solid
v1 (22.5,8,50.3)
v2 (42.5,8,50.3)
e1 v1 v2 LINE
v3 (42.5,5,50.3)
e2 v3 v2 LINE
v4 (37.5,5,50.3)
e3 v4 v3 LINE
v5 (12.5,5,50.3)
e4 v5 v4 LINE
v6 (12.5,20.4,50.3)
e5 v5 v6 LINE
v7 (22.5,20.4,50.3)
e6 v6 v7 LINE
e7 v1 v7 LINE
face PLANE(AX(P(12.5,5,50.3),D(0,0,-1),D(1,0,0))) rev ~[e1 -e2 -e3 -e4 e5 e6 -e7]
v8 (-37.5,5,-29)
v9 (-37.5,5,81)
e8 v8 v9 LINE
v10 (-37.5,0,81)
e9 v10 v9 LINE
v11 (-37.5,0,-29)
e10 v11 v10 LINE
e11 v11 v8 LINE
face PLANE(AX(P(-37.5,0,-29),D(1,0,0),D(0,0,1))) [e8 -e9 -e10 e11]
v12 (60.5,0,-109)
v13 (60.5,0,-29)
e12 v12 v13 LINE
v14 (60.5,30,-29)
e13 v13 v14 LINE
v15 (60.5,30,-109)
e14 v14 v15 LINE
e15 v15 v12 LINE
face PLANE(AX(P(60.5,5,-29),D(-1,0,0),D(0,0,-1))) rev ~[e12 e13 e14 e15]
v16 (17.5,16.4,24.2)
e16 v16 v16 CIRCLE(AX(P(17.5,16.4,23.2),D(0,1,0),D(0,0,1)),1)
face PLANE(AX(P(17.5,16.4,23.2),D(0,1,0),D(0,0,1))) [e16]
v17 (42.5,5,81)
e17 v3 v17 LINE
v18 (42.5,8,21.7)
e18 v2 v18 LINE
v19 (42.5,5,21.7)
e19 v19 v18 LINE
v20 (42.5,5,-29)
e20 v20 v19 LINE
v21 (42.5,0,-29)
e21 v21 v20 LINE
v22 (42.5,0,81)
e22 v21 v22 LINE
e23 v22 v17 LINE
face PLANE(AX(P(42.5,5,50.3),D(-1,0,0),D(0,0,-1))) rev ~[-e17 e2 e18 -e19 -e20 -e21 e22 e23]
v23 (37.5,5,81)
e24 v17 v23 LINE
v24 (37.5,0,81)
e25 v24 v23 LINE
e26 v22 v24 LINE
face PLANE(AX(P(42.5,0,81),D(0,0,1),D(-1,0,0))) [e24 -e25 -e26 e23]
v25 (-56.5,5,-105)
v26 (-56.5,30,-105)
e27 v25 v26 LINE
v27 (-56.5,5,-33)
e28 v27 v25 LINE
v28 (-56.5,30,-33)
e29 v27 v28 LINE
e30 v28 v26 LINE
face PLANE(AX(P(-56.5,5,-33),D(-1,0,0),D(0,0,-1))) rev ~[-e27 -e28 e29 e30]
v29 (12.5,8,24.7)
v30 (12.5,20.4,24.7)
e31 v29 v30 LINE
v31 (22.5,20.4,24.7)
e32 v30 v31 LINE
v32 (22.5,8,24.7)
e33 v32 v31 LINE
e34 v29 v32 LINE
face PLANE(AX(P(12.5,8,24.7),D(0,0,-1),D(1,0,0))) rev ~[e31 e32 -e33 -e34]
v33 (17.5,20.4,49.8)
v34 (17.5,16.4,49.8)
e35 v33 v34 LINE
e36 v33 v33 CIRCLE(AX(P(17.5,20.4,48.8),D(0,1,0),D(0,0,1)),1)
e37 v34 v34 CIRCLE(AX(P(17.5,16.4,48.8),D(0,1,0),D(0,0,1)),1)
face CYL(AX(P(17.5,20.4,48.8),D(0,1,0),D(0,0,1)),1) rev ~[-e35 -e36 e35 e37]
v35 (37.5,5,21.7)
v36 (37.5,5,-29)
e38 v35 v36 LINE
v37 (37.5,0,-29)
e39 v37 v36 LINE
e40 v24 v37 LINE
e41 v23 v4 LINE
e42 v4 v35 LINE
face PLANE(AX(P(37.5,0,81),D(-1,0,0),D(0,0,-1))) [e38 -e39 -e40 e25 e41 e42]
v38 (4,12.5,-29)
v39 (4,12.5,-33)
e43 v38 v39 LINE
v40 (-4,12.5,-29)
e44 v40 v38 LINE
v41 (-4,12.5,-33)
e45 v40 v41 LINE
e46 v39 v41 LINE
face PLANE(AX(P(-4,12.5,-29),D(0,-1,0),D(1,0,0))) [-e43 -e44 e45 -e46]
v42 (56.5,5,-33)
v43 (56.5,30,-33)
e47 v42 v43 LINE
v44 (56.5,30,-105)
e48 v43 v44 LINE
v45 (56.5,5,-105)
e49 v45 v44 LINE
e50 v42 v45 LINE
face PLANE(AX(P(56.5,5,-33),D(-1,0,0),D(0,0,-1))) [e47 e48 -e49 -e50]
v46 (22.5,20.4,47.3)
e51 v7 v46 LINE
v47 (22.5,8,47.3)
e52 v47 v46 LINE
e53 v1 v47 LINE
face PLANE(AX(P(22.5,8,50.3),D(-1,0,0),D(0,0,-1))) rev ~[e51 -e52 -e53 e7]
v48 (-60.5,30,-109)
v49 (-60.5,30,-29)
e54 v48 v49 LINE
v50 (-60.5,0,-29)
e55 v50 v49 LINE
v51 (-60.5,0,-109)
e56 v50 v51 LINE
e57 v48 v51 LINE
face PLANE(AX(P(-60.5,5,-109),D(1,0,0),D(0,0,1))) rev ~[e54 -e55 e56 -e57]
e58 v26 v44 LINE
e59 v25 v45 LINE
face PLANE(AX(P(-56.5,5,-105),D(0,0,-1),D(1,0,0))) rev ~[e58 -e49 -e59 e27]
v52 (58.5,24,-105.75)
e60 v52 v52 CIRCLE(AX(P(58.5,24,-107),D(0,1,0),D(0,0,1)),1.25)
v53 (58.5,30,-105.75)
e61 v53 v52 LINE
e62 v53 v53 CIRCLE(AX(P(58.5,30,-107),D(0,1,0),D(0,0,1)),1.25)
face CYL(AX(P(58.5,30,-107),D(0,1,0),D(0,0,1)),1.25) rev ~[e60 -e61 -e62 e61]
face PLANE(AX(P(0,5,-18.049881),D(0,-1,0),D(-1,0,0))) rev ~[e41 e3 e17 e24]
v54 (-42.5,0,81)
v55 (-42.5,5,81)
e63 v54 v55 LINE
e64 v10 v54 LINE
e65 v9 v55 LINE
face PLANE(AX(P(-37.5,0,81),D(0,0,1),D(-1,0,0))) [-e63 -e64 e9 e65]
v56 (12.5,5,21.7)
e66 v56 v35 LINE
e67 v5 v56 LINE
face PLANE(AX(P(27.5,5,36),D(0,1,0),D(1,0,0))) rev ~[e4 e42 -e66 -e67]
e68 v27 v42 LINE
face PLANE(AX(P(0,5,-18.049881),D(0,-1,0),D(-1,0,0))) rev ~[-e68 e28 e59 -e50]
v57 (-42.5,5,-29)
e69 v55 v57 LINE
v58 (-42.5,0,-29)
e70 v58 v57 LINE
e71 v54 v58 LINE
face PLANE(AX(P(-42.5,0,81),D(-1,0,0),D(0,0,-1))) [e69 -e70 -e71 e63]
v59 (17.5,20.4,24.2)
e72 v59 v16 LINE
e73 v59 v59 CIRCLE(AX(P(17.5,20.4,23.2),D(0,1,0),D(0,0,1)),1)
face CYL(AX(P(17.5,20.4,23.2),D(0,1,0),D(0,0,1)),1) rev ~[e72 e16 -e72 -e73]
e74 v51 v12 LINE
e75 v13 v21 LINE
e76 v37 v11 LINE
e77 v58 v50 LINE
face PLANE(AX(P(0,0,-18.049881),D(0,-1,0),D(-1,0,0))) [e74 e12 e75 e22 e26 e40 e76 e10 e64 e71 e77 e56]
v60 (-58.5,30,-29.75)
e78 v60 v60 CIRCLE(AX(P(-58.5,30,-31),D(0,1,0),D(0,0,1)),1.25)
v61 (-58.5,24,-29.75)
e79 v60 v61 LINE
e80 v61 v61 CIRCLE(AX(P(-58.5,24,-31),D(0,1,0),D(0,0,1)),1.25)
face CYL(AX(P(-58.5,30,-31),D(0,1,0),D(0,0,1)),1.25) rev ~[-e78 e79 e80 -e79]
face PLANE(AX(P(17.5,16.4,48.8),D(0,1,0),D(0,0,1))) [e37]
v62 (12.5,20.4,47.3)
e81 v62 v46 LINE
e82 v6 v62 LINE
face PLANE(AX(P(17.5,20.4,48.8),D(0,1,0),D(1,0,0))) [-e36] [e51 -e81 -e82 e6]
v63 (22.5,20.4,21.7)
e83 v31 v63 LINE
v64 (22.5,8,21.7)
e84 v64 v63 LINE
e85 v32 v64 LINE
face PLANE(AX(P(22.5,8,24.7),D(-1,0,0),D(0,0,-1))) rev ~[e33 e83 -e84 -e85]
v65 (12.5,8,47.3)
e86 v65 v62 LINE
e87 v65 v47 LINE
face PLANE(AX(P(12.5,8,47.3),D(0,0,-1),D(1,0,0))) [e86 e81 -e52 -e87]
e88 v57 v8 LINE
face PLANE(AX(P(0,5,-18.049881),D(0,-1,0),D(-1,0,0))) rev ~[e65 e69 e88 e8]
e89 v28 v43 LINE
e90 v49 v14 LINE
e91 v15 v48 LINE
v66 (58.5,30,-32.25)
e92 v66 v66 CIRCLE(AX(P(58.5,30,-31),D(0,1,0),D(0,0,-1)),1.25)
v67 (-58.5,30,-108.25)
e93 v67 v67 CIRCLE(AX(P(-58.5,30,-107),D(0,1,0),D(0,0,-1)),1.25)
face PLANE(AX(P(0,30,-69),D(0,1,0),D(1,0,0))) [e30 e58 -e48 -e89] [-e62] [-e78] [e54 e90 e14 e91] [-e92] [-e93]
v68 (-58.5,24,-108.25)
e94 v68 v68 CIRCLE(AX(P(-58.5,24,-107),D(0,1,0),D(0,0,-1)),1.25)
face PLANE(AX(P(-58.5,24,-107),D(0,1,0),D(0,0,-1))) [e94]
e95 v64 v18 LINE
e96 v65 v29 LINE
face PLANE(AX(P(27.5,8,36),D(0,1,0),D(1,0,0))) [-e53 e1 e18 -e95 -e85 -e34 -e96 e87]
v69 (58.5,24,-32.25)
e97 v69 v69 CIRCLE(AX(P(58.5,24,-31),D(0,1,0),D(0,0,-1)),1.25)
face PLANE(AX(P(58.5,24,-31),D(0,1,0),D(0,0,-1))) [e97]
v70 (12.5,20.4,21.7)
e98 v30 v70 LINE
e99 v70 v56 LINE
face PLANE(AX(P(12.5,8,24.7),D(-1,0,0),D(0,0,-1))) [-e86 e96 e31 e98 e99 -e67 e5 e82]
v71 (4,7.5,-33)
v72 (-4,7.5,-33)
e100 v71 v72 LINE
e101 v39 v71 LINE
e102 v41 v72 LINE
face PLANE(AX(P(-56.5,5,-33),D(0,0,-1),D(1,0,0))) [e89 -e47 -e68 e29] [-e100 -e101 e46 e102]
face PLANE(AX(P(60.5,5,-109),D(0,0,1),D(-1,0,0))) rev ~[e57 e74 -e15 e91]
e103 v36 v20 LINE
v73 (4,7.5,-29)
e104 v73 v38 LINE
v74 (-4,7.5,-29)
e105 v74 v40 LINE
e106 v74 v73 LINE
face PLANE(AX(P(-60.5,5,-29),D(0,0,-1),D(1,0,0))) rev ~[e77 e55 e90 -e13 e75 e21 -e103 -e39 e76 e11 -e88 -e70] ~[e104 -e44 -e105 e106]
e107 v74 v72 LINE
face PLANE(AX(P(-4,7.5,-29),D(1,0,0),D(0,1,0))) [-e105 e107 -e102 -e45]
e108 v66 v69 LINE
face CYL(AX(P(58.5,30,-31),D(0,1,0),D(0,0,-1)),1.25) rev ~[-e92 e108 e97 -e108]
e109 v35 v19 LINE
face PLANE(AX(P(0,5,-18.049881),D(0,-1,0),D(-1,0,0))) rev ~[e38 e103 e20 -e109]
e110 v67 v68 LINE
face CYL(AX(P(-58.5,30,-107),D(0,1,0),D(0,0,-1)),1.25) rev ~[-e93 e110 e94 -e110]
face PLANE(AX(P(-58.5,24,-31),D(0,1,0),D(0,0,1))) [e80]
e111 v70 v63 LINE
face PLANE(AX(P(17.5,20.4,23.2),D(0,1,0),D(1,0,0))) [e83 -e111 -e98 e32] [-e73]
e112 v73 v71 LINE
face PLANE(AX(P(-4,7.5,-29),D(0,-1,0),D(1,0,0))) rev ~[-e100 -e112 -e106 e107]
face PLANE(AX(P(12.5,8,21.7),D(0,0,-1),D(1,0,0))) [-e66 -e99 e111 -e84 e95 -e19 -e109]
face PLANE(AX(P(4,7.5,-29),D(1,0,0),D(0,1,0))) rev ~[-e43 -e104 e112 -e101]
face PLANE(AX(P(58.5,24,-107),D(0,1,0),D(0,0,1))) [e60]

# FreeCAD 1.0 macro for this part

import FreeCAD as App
import Part
import Sketcher
from FreeCAD import Vector
Q = App.Units.Quantity


def add_polygon(sketch, points):
    """Adds a closed chain of lines whose ends are joined by coincident constraints."""
    first, n = sketch.GeometryCount, len(points)
    for a, b in zip(points, points[1:] + points[:1]):
        sketch.addGeometry(Part.LineSegment(App.Vector(*a, 0), App.Vector(*b, 0)), False)
    for i in range(n):
        sketch.addConstraint(Sketcher.Constraint("Coincident", first + i, 2, first + (i + 1) % n, 1))

doc = App.newDocument("Part")
body = doc.addObject("PartDesign::Body", "Body")

# Sketch on XZ plane
sketch1 = body.newObject("Sketcher::SketchObject", "Sketch")
sketch1.AttachmentSupport = (doc.getObject("XZ_Plane"), [""])
sketch1.MapMode = "FlatFace"
add_polygon(sketch1, [(-42, -29), (-42, 81), (-38, 81), (-38, -29), (38, -29), (38, 81), (42, 81), (42, -29), (60, -29), (60, -109), (-60, -109), (-60, -29)])  # lines 0-11
sketch1.addConstraint(Sketcher.Constraint("Vertical", 0))
sketch1.addConstraint(Sketcher.Constraint("Horizontal", 1))
sketch1.addConstraint(Sketcher.Constraint("Vertical", 2))
sketch1.addConstraint(Sketcher.Constraint("Horizontal", 3))
sketch1.addConstraint(Sketcher.Constraint("Vertical", 4))
sketch1.addConstraint(Sketcher.Constraint("Horizontal", 5))
sketch1.addConstraint(Sketcher.Constraint("Vertical", 6))
sketch1.addConstraint(Sketcher.Constraint("Horizontal", 7))
sketch1.addConstraint(Sketcher.Constraint("Vertical", 8))
sketch1.addConstraint(Sketcher.Constraint("Horizontal", 9))
sketch1.addConstraint(Sketcher.Constraint("Vertical", 10))
sketch1.addConstraint(Sketcher.Constraint("Horizontal", 11))
sketch1.addConstraint(Sketcher.Constraint("Symmetric", 1, 2, 4, 2, -2))
sketch1.addConstraint(Sketcher.Constraint("Symmetric", 7, 2, 10, 2, -2))
sketch1.addConstraint(Sketcher.Constraint("Horizontal", 3, 2, 6, 2))
sketch1.addConstraint(Sketcher.Constraint("Equal", 1, 5))
sketch1.addConstraint(Sketcher.Constraint("DistanceX", 1, 1, 1, 2, Q("5 mm")))
sketch1.addConstraint(Sketcher.Constraint("DistanceX", 3, 1, 3, 2, Q("75 mm")))
sketch1.addConstraint(Sketcher.Constraint("DistanceX", 7, 1, 7, 2, Q("18 mm")))
sketch1.addConstraint(Sketcher.Constraint("DistanceY", 0, 1, 0, 2, Q("110 mm")))
sketch1.addConstraint(Sketcher.Constraint("DistanceY", 8, 2, 8, 1, Q("80 mm")))
sketch1.addConstraint(Sketcher.Constraint("DistanceY", -1, 1, 0, 2, Q("81 mm")))
pad1 = body.newObject("PartDesign::Pad", "Pad")
pad1.Profile = sketch1
pad1.Length = 5
pad1.Reversed = True

# Sketch on XZ plane
sketch2 = body.newObject("Sketcher::SketchObject", "Sketch001")
sketch2.AttachmentSupport = (doc.getObject("XZ_Plane"), [""])
sketch2.MapMode = "FlatFace"
sketch2.AttachmentOffset = App.Placement(Vector(0, 0, -5), App.Rotation())
add_polygon(sketch2, [(-60, -109), (-60, -29), (60, -29), (60, -109)])  # lines 0-3
add_polygon(sketch2, [(56, -33), (-56, -33), (-56, -105), (56, -105)])  # lines 4-7
sketch2.addConstraint(Sketcher.Constraint("Vertical", 0))
sketch2.addConstraint(Sketcher.Constraint("Horizontal", 1))
sketch2.addConstraint(Sketcher.Constraint("Vertical", 2))
sketch2.addConstraint(Sketcher.Constraint("Horizontal", 3))
sketch2.addConstraint(Sketcher.Constraint("Horizontal", 4))
sketch2.addConstraint(Sketcher.Constraint("Vertical", 5))
sketch2.addConstraint(Sketcher.Constraint("Horizontal", 6))
sketch2.addConstraint(Sketcher.Constraint("Vertical", 7))
sketch2.addConstraint(Sketcher.Constraint("DistanceX", 1, 1, 1, 2, Q("121 mm")))
sketch2.addConstraint(Sketcher.Constraint("DistanceX", 4, 2, 4, 1, Q("113 mm")))
sketch2.addConstraint(Sketcher.Constraint("DistanceY", 0, 1, 0, 2, Q("80 mm")))
sketch2.addConstraint(Sketcher.Constraint("DistanceY", 5, 2, 5, 1, Q("72 mm")))
sketch2.addConstraint(Sketcher.Constraint("DistanceY", 0, 2, -1, 1, Q("29 mm")))
sketch2.addConstraint(Sketcher.Constraint("DistanceY", 4, 2, -1, 1, Q("33 mm")))
sketch2.addConstraint(Sketcher.Constraint("DistanceX", 0, 2, 4, 2, Q("4 mm")))
sketch2.addConstraint(Sketcher.Constraint("DistanceX", 0, 2, -1, 1, Q("60.5 mm")))
pad2 = body.newObject("PartDesign::Pad", "Pad001")
pad2.Profile = sketch2
pad2.Length = 25
pad2.Reversed = True

# Sketch on XZ plane
sketch3 = body.newObject("Sketcher::SketchObject", "Sketch002")
sketch3.AttachmentSupport = (doc.getObject("XZ_Plane"), [""])
sketch3.MapMode = "FlatFace"
sketch3.AttachmentOffset = App.Placement(Vector(0, 0, -30), App.Rotation())
sketch3.addGeometry(Part.Circle(Vector(-58.5, -31, 0), Vector(0, 0, 1), 1.2), False)
sketch3.addGeometry(Part.Circle(Vector(58.5, -31, 0), Vector(0, 0, 1), 1.2), False)
sketch3.addGeometry(Part.Circle(Vector(-58.5, -107, 0), Vector(0, 0, 1), 1.2), False)
sketch3.addGeometry(Part.Circle(Vector(58.5, -107, 0), Vector(0, 0, 1), 1.2), False)
sketch3.addConstraint(Sketcher.Constraint("Equal", 0, 1))
sketch3.addConstraint(Sketcher.Constraint("Equal", 1, 2))
sketch3.addConstraint(Sketcher.Constraint("Equal", 2, 3))
sketch3.addConstraint(Sketcher.Constraint("Symmetric", 0, 3, 1, 3, -2))
sketch3.addConstraint(Sketcher.Constraint("Symmetric", 2, 3, 3, 3, -2))
sketch3.addConstraint(Sketcher.Constraint("Vertical", 0, 3, 2, 3))
sketch3.addConstraint(Sketcher.Constraint("Diameter", 0, Q("2.5 mm")))
sketch3.addConstraint(Sketcher.Constraint("DistanceY", 0, 3, -1, 1, Q("31 mm")))
sketch3.addConstraint(Sketcher.Constraint("DistanceY", 2, 3, -1, 1, Q("107 mm")))
sketch3.addConstraint(Sketcher.Constraint("DistanceX", 0, 3, 1, 3, Q("117 mm")))
pocket1 = body.newObject("PartDesign::Pocket", "Pocket")
pocket1.Profile = sketch3
pocket1.Length = 6
pocket1.Reversed = True

# Sketch on XZ plane
sketch4 = body.newObject("Sketcher::SketchObject", "Sketch003")
sketch4.AttachmentSupport = (doc.getObject("XZ_Plane"), [""])
sketch4.MapMode = "FlatFace"
sketch4.AttachmentOffset = App.Placement(Vector(0, 0, -5), App.Rotation())
add_polygon(sketch4, [(12, 22), (12, 50), (42, 50), (42, 22)])  # lines 0-3
sketch4.addConstraint(Sketcher.Constraint("Vertical", 0))
sketch4.addConstraint(Sketcher.Constraint("Horizontal", 1))
sketch4.addConstraint(Sketcher.Constraint("Vertical", 2))
sketch4.addConstraint(Sketcher.Constraint("Horizontal", 3))
sketch4.addConstraint(Sketcher.Constraint("DistanceX", 1, 1, 1, 2, Q("30 mm")))
sketch4.addConstraint(Sketcher.Constraint("DistanceY", 0, 1, 0, 2, Q("28.6 mm")))
sketch4.addConstraint(Sketcher.Constraint("DistanceX", -1, 1, 0, 2, Q("12.5 mm")))
sketch4.addConstraint(Sketcher.Constraint("DistanceY", -1, 1, 0, 2, Q("50.3 mm")))
pad3 = body.newObject("PartDesign::Pad", "Pad002")
pad3.Profile = sketch4
pad3.Length = 3
pad3.Reversed = True

# Sketch on XZ plane
sketch5 = body.newObject("Sketcher::SketchObject", "Sketch004")
sketch5.AttachmentSupport = (doc.getObject("XZ_Plane"), [""])
sketch5.MapMode = "FlatFace"
sketch5.AttachmentOffset = App.Placement(Vector(0, 0, -8), App.Rotation())
add_polygon(sketch5, [(12.5, 21.7), (12.5, 24.7), (22.5, 24.7), (22.5, 21.7)])  # lines 0-3
add_polygon(sketch5, [(12.5, 47.3), (12.5, 50.3), (22.5, 50.3), (22.5, 47.3)])  # lines 4-7
sketch5.addConstraint(Sketcher.Constraint("Vertical", 0))
sketch5.addConstraint(Sketcher.Constraint("Horizontal", 1))
sketch5.addConstraint(Sketcher.Constraint("Vertical", 2))
sketch5.addConstraint(Sketcher.Constraint("Horizontal", 3))
sketch5.addConstraint(Sketcher.Constraint("Vertical", 4))
sketch5.addConstraint(Sketcher.Constraint("Horizontal", 5))
sketch5.addConstraint(Sketcher.Constraint("Vertical", 6))
sketch5.addConstraint(Sketcher.Constraint("Horizontal", 7))
sketch5.addConstraint(Sketcher.Constraint("Vertical", 3, 2, 4, 2))
sketch5.addConstraint(Sketcher.Constraint("Vertical", 2, 2, 5, 2))
sketch5.addConstraint(Sketcher.Constraint("Equal", 2, 4))
sketch5.addConstraint(Sketcher.Constraint("DistanceX", 1, 1, 1, 2, Q("10 mm")))
sketch5.addConstraint(Sketcher.Constraint("DistanceY", 0, 1, 0, 2, Q("3 mm")))
sketch5.addConstraint(Sketcher.Constraint("DistanceX", -1, 1, 0, 2, Q("12.5 mm")))
sketch5.addConstraint(Sketcher.Constraint("DistanceY", -1, 1, 0, 2, Q("24.7 mm")))
sketch5.addConstraint(Sketcher.Constraint("DistanceY", -1, 1, 4, 2, Q("50.3 mm")))
pad4 = body.newObject("PartDesign::Pad", "Pad003")
pad4.Profile = sketch5
pad4.Length = 12.4
pad4.Reversed = True

# Sketch on XZ plane
sketch6 = body.newObject("Sketcher::SketchObject", "Sketch005")
sketch6.AttachmentSupport = (doc.getObject("XZ_Plane"), [""])
sketch6.MapMode = "FlatFace"
sketch6.AttachmentOffset = App.Placement(Vector(0, 0, -20.4), App.Rotation())
sketch6.addGeometry(Part.Circle(Vector(17.5, 48.8, 0), Vector(0, 0, 1), 1), False)
sketch6.addGeometry(Part.Circle(Vector(17.5, 23.2, 0), Vector(0, 0, 1), 1), False)
sketch6.addConstraint(Sketcher.Constraint("Equal", 0, 1))
sketch6.addConstraint(Sketcher.Constraint("Vertical", 0, 3, 1, 3))
sketch6.addConstraint(Sketcher.Constraint("Diameter", 0, Q("2 mm")))
sketch6.addConstraint(Sketcher.Constraint("DistanceX", -1, 1, 0, 3, Q("17.5 mm")))
sketch6.addConstraint(Sketcher.Constraint("DistanceY", -1, 1, 0, 3, Q("48.8 mm")))
sketch6.addConstraint(Sketcher.Constraint("DistanceY", -1, 1, 1, 3, Q("23.2 mm")))
pocket2 = body.newObject("PartDesign::Pocket", "Pocket001")
pocket2.Profile = sketch6
pocket2.Length = 4
pocket2.Reversed = True

# Sketch on XY plane
sketch7 = body.newObject("Sketcher::SketchObject", "Sketch006")
sketch7.AttachmentSupport = (doc.getObject("XY_Plane"), [""])
sketch7.MapMode = "FlatFace"
sketch7.AttachmentOffset = App.Placement(Vector(0, 0, -29), App.Rotation())
add_polygon(sketch7, [(-4, 12), (-4, 8), (4, 8), (4, 12)])  # lines 0-3
sketch7.addConstraint(Sketcher.Constraint("Vertical", 0))
sketch7.addConstraint(Sketcher.Constraint("Horizontal", 1))
sketch7.addConstraint(Sketcher.Constraint("Vertical", 2))
sketch7.addConstraint(Sketcher.Constraint("Horizontal", 3))
sketch7.addConstraint(Sketcher.Constraint("DistanceX", 1, 1, 1, 2, Q("8 mm")))
sketch7.addConstraint(Sketcher.Constraint("DistanceY", 0, 2, 0, 1, Q("5 mm")))
sketch7.addConstraint(Sketcher.Constraint("DistanceX", 0, 2, -1, 1, Q("4 mm")))
sketch7.addConstraint(Sketcher.Constraint("DistanceY", -1, 1, 0, 2, Q("7.5 mm")))
pocket3 = body.newObject("PartDesign::Pocket", "Pocket002")
pocket3.Profile = sketch7
pocket3.Length = 21

doc.recompute()
